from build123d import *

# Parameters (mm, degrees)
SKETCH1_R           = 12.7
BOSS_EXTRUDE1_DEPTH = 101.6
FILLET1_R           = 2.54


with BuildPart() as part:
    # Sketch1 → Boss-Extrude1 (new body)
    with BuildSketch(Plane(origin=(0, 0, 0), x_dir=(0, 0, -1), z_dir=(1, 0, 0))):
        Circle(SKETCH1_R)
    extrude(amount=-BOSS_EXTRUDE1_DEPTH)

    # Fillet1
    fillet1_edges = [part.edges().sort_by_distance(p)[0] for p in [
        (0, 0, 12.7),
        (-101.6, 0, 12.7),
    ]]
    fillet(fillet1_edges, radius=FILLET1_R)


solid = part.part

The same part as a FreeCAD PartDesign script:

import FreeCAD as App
import Part
import Sketcher
Q = App.Units.Quantity


def edges_at(feature, points):
    """Names of the edges that pass closest to the given points."""
    edges = feature.Shape.Edges
    near = lambda p: min(range(len(edges)), key=lambda i: edges[i].distToShape(Part.Vertex(*p))[0])
    return sorted({f"Edge{near(p) + 1}" for p in points})

doc = App.newDocument("Part")
body = doc.addObject("PartDesign::Body", "Body")

sketch1 = body.newObject("Sketcher::SketchObject", "Sketch")
sketch1.AttachmentSupport = (doc.getObject("YZ_Plane"), [""])
sketch1.MapMode = "FlatFace"
sketch1.addGeometry(Part.Circle(App.Vector(0, 0, 0), App.Vector(0, 0, 1), 13), False)
sketch1.addConstraint([
    Sketcher.Constraint("Coincident", 0, 3, -1, 1),
    Sketcher.Constraint("Diameter", 0, Q("1 in")),
])
pad1 = body.newObject("PartDesign::Pad", "Pad")
pad1.Profile = sketch1
pad1.Length = Q("4 in")
pad1.Reversed = True
doc.recompute()

fillet = body.newObject("PartDesign::Fillet", "Fillet")
fillet.Base = (pad1, edges_at(pad1, [(0, 0, 12.7), (-101.6, 0, 12.7)]))
fillet.Radius = Q("0.1 in")

doc.recompute()
